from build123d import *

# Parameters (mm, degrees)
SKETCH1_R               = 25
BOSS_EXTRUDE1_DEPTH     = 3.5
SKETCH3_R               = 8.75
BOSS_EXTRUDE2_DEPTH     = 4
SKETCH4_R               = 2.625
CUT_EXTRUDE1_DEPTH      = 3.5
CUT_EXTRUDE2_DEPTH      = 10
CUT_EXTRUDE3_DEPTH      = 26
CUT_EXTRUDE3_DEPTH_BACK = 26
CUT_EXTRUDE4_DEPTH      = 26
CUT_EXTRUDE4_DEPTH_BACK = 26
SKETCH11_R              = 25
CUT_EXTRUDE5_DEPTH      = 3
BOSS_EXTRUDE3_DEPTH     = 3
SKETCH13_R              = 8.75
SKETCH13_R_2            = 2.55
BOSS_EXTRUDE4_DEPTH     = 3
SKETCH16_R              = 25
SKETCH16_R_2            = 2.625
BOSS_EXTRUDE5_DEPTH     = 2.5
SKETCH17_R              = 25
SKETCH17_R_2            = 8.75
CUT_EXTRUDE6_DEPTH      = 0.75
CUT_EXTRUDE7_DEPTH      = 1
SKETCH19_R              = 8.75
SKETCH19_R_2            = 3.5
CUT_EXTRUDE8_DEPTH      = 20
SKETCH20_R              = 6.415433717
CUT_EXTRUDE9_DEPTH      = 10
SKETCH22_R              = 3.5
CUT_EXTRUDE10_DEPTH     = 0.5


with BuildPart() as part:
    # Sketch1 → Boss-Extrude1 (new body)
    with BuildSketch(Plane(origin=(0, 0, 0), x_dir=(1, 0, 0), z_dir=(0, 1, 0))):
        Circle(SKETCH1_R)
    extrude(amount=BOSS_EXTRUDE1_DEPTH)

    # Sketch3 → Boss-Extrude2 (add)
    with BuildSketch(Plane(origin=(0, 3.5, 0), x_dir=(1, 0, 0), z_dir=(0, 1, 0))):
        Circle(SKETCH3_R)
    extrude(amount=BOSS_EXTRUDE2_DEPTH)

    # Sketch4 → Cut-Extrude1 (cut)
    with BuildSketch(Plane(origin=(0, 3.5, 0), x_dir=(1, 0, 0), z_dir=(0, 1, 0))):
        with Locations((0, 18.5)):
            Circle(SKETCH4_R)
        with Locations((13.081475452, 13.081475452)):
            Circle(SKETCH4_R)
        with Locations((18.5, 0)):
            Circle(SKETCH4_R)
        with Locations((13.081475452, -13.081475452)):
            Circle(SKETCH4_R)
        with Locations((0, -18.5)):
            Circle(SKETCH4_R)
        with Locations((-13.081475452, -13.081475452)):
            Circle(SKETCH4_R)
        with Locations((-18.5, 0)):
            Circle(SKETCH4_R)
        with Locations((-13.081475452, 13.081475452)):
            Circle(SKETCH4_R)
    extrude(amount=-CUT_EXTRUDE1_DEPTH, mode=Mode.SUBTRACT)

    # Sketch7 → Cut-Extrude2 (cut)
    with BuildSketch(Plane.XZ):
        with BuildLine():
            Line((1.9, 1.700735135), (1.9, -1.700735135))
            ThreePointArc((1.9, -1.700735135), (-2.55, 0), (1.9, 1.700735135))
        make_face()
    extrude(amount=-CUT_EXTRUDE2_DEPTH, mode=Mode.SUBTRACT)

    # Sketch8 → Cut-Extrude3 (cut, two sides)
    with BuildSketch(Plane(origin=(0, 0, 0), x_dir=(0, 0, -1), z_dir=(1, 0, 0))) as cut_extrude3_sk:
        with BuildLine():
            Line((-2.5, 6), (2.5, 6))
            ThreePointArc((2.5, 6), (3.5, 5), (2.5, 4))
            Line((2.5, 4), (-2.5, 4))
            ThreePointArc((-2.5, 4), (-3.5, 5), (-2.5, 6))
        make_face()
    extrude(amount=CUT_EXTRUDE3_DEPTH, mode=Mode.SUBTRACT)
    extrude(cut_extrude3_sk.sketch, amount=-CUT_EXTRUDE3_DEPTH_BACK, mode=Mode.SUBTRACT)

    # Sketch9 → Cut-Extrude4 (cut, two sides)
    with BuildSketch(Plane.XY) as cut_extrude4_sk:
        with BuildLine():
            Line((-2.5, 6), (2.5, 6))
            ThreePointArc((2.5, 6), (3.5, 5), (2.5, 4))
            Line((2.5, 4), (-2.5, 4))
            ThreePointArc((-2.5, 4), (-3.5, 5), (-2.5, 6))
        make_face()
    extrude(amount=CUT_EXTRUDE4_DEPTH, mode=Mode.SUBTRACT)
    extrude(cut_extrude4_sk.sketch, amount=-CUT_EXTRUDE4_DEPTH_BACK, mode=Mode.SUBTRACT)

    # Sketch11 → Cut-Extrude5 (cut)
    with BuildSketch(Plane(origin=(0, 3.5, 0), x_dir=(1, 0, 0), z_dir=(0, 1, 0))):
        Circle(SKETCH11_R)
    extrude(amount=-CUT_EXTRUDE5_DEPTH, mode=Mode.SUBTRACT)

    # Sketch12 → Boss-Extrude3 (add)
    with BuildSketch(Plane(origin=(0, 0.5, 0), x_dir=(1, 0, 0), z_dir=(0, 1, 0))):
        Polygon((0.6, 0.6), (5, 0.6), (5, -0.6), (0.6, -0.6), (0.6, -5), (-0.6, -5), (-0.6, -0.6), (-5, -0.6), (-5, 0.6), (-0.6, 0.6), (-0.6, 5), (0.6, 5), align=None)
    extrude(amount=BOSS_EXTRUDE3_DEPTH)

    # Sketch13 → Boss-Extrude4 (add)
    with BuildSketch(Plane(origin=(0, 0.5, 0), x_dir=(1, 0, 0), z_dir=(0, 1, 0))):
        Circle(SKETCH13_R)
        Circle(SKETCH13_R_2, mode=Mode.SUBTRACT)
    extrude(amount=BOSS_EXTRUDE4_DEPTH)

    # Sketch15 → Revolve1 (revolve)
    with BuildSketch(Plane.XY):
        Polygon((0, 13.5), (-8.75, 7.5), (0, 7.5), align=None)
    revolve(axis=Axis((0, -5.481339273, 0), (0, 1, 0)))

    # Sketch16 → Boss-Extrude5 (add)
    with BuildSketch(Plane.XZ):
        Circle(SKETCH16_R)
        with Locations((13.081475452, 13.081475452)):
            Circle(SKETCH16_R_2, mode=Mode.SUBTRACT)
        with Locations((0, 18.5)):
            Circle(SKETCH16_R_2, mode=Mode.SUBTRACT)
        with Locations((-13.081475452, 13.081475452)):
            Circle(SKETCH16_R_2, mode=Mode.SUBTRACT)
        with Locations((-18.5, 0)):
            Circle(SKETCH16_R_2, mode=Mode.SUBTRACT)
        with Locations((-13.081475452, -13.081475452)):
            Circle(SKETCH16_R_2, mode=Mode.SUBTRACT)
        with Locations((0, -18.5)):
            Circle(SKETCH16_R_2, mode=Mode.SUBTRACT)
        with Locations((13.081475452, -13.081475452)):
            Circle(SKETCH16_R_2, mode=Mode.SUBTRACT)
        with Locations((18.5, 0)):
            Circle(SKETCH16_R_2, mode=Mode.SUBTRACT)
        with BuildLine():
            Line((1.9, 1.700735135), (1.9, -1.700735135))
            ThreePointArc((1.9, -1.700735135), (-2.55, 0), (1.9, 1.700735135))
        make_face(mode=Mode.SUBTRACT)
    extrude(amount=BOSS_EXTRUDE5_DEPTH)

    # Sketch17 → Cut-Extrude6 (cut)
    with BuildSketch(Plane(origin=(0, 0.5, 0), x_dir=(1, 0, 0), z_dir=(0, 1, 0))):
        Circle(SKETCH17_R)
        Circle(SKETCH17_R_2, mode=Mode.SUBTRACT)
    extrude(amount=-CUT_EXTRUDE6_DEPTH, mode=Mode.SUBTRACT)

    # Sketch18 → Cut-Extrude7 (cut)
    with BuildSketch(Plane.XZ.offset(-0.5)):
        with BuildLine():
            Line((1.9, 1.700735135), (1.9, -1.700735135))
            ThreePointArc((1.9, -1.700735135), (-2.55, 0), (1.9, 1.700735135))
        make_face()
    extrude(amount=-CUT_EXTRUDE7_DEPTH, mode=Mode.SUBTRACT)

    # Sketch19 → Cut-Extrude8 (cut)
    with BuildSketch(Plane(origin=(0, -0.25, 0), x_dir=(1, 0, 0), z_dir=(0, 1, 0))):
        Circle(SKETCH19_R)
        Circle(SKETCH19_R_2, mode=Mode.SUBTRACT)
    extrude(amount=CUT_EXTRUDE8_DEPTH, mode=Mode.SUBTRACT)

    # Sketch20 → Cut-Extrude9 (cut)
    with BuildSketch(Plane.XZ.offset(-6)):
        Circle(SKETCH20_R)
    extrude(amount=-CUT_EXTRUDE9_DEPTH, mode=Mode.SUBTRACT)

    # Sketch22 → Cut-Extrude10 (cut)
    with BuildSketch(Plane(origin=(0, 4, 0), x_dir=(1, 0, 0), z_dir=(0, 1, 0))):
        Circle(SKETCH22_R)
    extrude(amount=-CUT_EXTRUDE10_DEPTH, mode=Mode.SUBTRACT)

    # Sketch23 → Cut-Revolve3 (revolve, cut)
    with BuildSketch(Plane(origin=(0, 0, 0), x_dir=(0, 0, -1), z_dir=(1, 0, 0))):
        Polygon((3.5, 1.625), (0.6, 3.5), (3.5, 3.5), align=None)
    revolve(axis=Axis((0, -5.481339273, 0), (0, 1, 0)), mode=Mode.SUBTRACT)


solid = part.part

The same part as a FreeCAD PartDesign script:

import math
import FreeCAD as App
import Part
import Sketcher

doc = App.newDocument("Part")
body = doc.addObject("PartDesign::Body", "Body")
body.AllowCompound = True

sketch1 = doc.addObject("Sketcher::SketchObject", "Sketch")
body.addObject(sketch1)
sketch1.AttachmentSupport = (doc.XZ_Plane, [""])
sketch1.MapMode = "FlatFace"
sketch1.addGeometry(Part.Circle(App.Vector(0, 0, 0), App.Vector(0, 0, 1), 25), False)
sketch1.addConstraint(Sketcher.Constraint("Coincident", 0, 3, -1, 1))
sketch1.addConstraint(Sketcher.Constraint("Diameter", 0, 50.0))
pad1 = doc.addObject("PartDesign::Pad", "Pad")
body.addObject(pad1)
pad1.Profile = sketch1
pad1.Length = 3.5
pad1.Reversed = True

sketch2 = doc.addObject("Sketcher::SketchObject", "Sketch001")
body.addObject(sketch2)
sketch2.AttachmentSupport = (doc.XZ_Plane, [""])
sketch2.MapMode = "FlatFace"
sketch2.AttachmentOffset = App.Placement(App.Vector(0, 0, -3.5), App.Rotation())
sketch2.addGeometry(Part.Circle(App.Vector(0, 0, 0), App.Vector(0, 0, 1), 8.75), False)
sketch2.addConstraint(Sketcher.Constraint("Coincident", 0, 3, -1, 1))
sketch2.addConstraint(Sketcher.Constraint("Diameter", 0, 17.5))
pad2 = doc.addObject("PartDesign::Pad", "Pad001")
body.addObject(pad2)
pad2.Profile = sketch2
pad2.Length = 4
pad2.Reversed = True

sketch3 = doc.addObject("Sketcher::SketchObject", "Sketch002")
body.addObject(sketch3)
sketch3.AttachmentSupport = (doc.XZ_Plane, [""])
sketch3.MapMode = "FlatFace"
sketch3.AttachmentOffset = App.Placement(App.Vector(0, 0, -3.5), App.Rotation())
sketch3.addGeometry(Part.Circle(App.Vector(0, -18.5, 0), App.Vector(0, 0, 1), 2.625), False)
sketch3.addGeometry(Part.Circle(App.Vector(13.081475, -13.081475, 0), App.Vector(0, 0, 1), 2.625), False)
sketch3.addGeometry(Part.Circle(App.Vector(18.5, 0, 0), App.Vector(0, 0, 1), 2.625), False)
sketch3.addGeometry(Part.Circle(App.Vector(13.081475, 13.081475, 0), App.Vector(0, 0, 1), 2.625), False)
sketch3.addGeometry(Part.Circle(App.Vector(0, 18.5, 0), App.Vector(0, 0, 1), 2.625), False)
sketch3.addGeometry(Part.Circle(App.Vector(-13.081475, 13.081475, 0), App.Vector(0, 0, 1), 2.625), False)
sketch3.addGeometry(Part.Circle(App.Vector(-18.5, 0, 0), App.Vector(0, 0, 1), 2.625), False)
sketch3.addGeometry(Part.Circle(App.Vector(-13.081475, -13.081475, 0), App.Vector(0, 0, 1), 2.625), False)
sketch3.addConstraint(Sketcher.Constraint("Equal", 0, 1))
sketch3.addConstraint(Sketcher.Constraint("Equal", 1, 2))
sketch3.addConstraint(Sketcher.Constraint("Equal", 2, 3))
sketch3.addConstraint(Sketcher.Constraint("Equal", 3, 4))
sketch3.addConstraint(Sketcher.Constraint("Equal", 4, 5))
sketch3.addConstraint(Sketcher.Constraint("Equal", 5, 6))
sketch3.addConstraint(Sketcher.Constraint("Equal", 6, 7))
sketch3.addConstraint(Sketcher.Constraint("Symmetric", 0, 3, 4, 3, -1, 1))
sketch3.addConstraint(Sketcher.Constraint("Symmetric", 1, 3, 5, 3, -1, 1))
sketch3.addConstraint(Sketcher.Constraint("Symmetric", 2, 3, 6, 3, -1, 1))
sketch3.addConstraint(Sketcher.Constraint("Symmetric", 3, 3, 7, 3, -1, 1))
sketch3.addConstraint(Sketcher.Constraint("Symmetric", 3, 3, 5, 3, -2))
sketch3.addConstraint(Sketcher.Constraint("PointOnObject", 0, 3, -2))
sketch3.addConstraint(Sketcher.Constraint("PointOnObject", 2, 3, -1))
sketch3.addConstraint(Sketcher.Constraint("Diameter", 0, 5.25))
sketch3.addConstraint(Sketcher.Constraint("DistanceY", 0, 3, 4, 3, 37.0))
sketch3.addConstraint(Sketcher.Constraint("DistanceX", -1, 1, 2, 3, 18.5))
sketch3.addConstraint(Sketcher.Constraint("DistanceY", 1, 3, 3, 3, 26.162951))
sketch3.addConstraint(Sketcher.Constraint("DistanceX", 5, 3, 3, 3, 26.162951))
pocket1 = doc.addObject("PartDesign::Pocket", "Pocket")
body.addObject(pocket1)
pocket1.Profile = sketch3
pocket1.Length = 3.5
pocket1.Reversed = True

sketch4 = doc.addObject("Sketcher::SketchObject", "Sketch003")
body.addObject(sketch4)
sketch4.AttachmentSupport = (doc.XZ_Plane, [""])
sketch4.MapMode = "FlatFace"
sketch4.addGeometry(Part.LineSegment(App.Vector(1.9, -1.700735, 0), App.Vector(1.9, 1.700735, 0)), False)
sketch4.addGeometry(Part.ArcOfCircle(Part.Circle(App.Vector(0, 0, 0), App.Vector(0, 0, 1), 2.55), math.radians(41.83248), math.radians(318.16752)), False)
sketch4.addConstraint(Sketcher.Constraint("Coincident", 0, 1, 1, 2))
sketch4.addConstraint(Sketcher.Constraint("Coincident", 1, 1, 0, 2))
sketch4.addConstraint(Sketcher.Constraint("Vertical", 0))
sketch4.addConstraint(Sketcher.Constraint("Coincident", 1, 3, -1, 1))
sketch4.addConstraint(Sketcher.Constraint("Radius", 1, 2.55))
sketch4.addConstraint(Sketcher.Constraint("DistanceX", -1, 1, 0, 1, 1.9))
pocket2 = doc.addObject("PartDesign::Pocket", "Pocket001")
body.addObject(pocket2)
pocket2.Profile = sketch4
pocket2.Length = 10

sketch5 = doc.addObject("Sketcher::SketchObject", "Sketch004")
body.addObject(sketch5)
sketch5.AttachmentSupport = (doc.YZ_Plane, [""])
sketch5.MapMode = "FlatFace"
sketch5.addGeometry(Part.LineSegment(App.Vector(6, -2.5, 0), App.Vector(6, 2.5, 0)), False)
sketch5.addGeometry(Part.ArcOfCircle(Part.Circle(App.Vector(5, 2.5, 0), App.Vector(0, 0, 1), 1), math.radians(0), math.radians(180)), False)
sketch5.addGeometry(Part.LineSegment(App.Vector(4, 2.5, 0), App.Vector(4, -2.5, 0)), False)
sketch5.addGeometry(Part.ArcOfCircle(Part.Circle(App.Vector(5, -2.5, 0), App.Vector(0, 0, 1), 1), math.radians(180), math.radians(360)), False)
sketch5.addConstraint(Sketcher.Constraint("Tangent", 0, 2, 1, 1))
sketch5.addConstraint(Sketcher.Constraint("Tangent", 1, 2, 2, 1))
sketch5.addConstraint(Sketcher.Constraint("Tangent", 2, 2, 3, 1))
sketch5.addConstraint(Sketcher.Constraint("Tangent", 3, 2, 0, 1))
sketch5.addConstraint(Sketcher.Constraint("Vertical", 0))
sketch5.addConstraint(Sketcher.Constraint("Vertical", 2))
sketch5.addConstraint(Sketcher.Constraint("Radius", 1, 1.0))
sketch5.addConstraint(Sketcher.Constraint("DistanceY", 0, 1, 0, 2, 5.0))
sketch5.addConstraint(Sketcher.Constraint("DistanceX", -1, 1, 1, 3, 5.0))
sketch5.addConstraint(Sketcher.Constraint("DistanceY", -1, 1, 1, 3, 2.5))
pocket3 = doc.addObject("PartDesign::Pocket", "Pocket002")
body.addObject(pocket3)
pocket3.Profile = sketch5
pocket3.Type = "ThroughAll"
pocket3.Midplane = True

sketch6 = doc.addObject("Sketcher::SketchObject", "Sketch005")
body.addObject(sketch6)
sketch6.AttachmentSupport = (doc.XY_Plane, [""])
sketch6.MapMode = "FlatFace"
sketch6.addGeometry(Part.LineSegment(App.Vector(2.5, 6, 0), App.Vector(-2.5, 6, 0)), False)
sketch6.addGeometry(Part.ArcOfCircle(Part.Circle(App.Vector(-2.5, 5, 0), App.Vector(0, 0, 1), 1), math.radians(90), math.radians(270)), False)
sketch6.addGeometry(Part.LineSegment(App.Vector(-2.5, 4, 0), App.Vector(2.5, 4, 0)), False)
sketch6.addGeometry(Part.ArcOfCircle(Part.Circle(App.Vector(2.5, 5, 0), App.Vector(0, 0, 1), 1), math.radians(-90), math.radians(90)), False)
sketch6.addConstraint(Sketcher.Constraint("Tangent", 0, 2, 1, 1))
sketch6.addConstraint(Sketcher.Constraint("Tangent", 1, 2, 2, 1))
sketch6.addConstraint(Sketcher.Constraint("Tangent", 2, 2, 3, 1))
sketch6.addConstraint(Sketcher.Constraint("Tangent", 3, 2, 0, 1))
sketch6.addConstraint(Sketcher.Constraint("Horizontal", 0))
sketch6.addConstraint(Sketcher.Constraint("Horizontal", 2))
sketch6.addConstraint(Sketcher.Constraint("Radius", 1, 1.0))
sketch6.addConstraint(Sketcher.Constraint("DistanceX", 0, 2, 0, 1, 5.0))
sketch6.addConstraint(Sketcher.Constraint("DistanceY", -1, 1, 1, 3, 5.0))
sketch6.addConstraint(Sketcher.Constraint("DistanceX", 1, 3, -1, 1, 2.5))
pocket4 = doc.addObject("PartDesign::Pocket", "Pocket003")
body.addObject(pocket4)
pocket4.Profile = sketch6
pocket4.Type = "ThroughAll"
pocket4.Midplane = True

sketch7 = doc.addObject("Sketcher::SketchObject", "Sketch006")
body.addObject(sketch7)
sketch7.AttachmentSupport = (doc.XZ_Plane, [""])
sketch7.MapMode = "FlatFace"
sketch7.AttachmentOffset = App.Placement(App.Vector(0, 0, -3.5), App.Rotation())
sketch7.addGeometry(Part.Circle(App.Vector(0, 0, 0), App.Vector(0, 0, 1), 25), False)
sketch7.addConstraint(Sketcher.Constraint("Coincident", 0, 3, -1, 1))
sketch7.addConstraint(Sketcher.Constraint("Diameter", 0, 50.0))
pocket5 = doc.addObject("PartDesign::Pocket", "Pocket004")
body.addObject(pocket5)
pocket5.Profile = sketch7
pocket5.Length = 3
pocket5.Reversed = True

sketch8 = doc.addObject("Sketcher::SketchObject", "Sketch007")
body.addObject(sketch8)
sketch8.AttachmentSupport = (doc.XZ_Plane, [""])
sketch8.MapMode = "FlatFace"
sketch8.AttachmentOffset = App.Placement(App.Vector(0, 0, -0.5), App.Rotation())
sketch8.addGeometry(Part.LineSegment(App.Vector(5, -0.6, 0), App.Vector(0.6, -0.6, 0)), False)
sketch8.addGeometry(Part.LineSegment(App.Vector(0.6, -0.6, 0), App.Vector(0.6, -5, 0)), False)
sketch8.addGeometry(Part.LineSegment(App.Vector(0.6, -5, 0), App.Vector(-0.6, -5, 0)), False)
sketch8.addGeometry(Part.LineSegment(App.Vector(-0.6, -5, 0), App.Vector(-0.6, -0.6, 0)), False)
sketch8.addGeometry(Part.LineSegment(App.Vector(-0.6, -0.6, 0), App.Vector(-5, -0.6, 0)), False)
sketch8.addGeometry(Part.LineSegment(App.Vector(-5, -0.6, 0), App.Vector(-5, 0.6, 0)), False)
sketch8.addGeometry(Part.LineSegment(App.Vector(-5, 0.6, 0), App.Vector(-0.6, 0.6, 0)), False)
sketch8.addGeometry(Part.LineSegment(App.Vector(-0.6, 0.6, 0), App.Vector(-0.6, 5, 0)), False)
sketch8.addGeometry(Part.LineSegment(App.Vector(-0.6, 5, 0), App.Vector(0.6, 5, 0)), False)
sketch8.addGeometry(Part.LineSegment(App.Vector(0.6, 5, 0), App.Vector(0.6, 0.6, 0)), False)
sketch8.addGeometry(Part.LineSegment(App.Vector(0.6, 0.6, 0), App.Vector(5, 0.6, 0)), False)
sketch8.addGeometry(Part.LineSegment(App.Vector(5, 0.6, 0), App.Vector(5, -0.6, 0)), False)
sketch8.addConstraint(Sketcher.Constraint("Coincident", 0, 2, 1, 1))
sketch8.addConstraint(Sketcher.Constraint("Coincident", 1, 2, 2, 1))
sketch8.addConstraint(Sketcher.Constraint("Coincident", 2, 2, 3, 1))
sketch8.addConstraint(Sketcher.Constraint("Coincident", 3, 2, 4, 1))
sketch8.addConstraint(Sketcher.Constraint("Coincident", 4, 2, 5, 1))
sketch8.addConstraint(Sketcher.Constraint("Coincident", 5, 2, 6, 1))
sketch8.addConstraint(Sketcher.Constraint("Coincident", 6, 2, 7, 1))
sketch8.addConstraint(Sketcher.Constraint("Coincident", 7, 2, 8, 1))
sketch8.addConstraint(Sketcher.Constraint("Coincident", 8, 2, 9, 1))
sketch8.addConstraint(Sketcher.Constraint("Coincident", 9, 2, 10, 1))
sketch8.addConstraint(Sketcher.Constraint("Coincident", 10, 2, 11, 1))
sketch8.addConstraint(Sketcher.Constraint("Coincident", 11, 2, 0, 1))
sketch8.addConstraint(Sketcher.Constraint("Horizontal", 0))
sketch8.addConstraint(Sketcher.Constraint("Vertical", 1))
sketch8.addConstraint(Sketcher.Constraint("Horizontal", 2))
sketch8.addConstraint(Sketcher.Constraint("Vertical", 3))
sketch8.addConstraint(Sketcher.Constraint("Horizontal", 4))
sketch8.addConstraint(Sketcher.Constraint("Vertical", 5))
sketch8.addConstraint(Sketcher.Constraint("Horizontal", 6))
sketch8.addConstraint(Sketcher.Constraint("Vertical", 7))
sketch8.addConstraint(Sketcher.Constraint("Horizontal", 8))
sketch8.addConstraint(Sketcher.Constraint("Vertical", 9))
sketch8.addConstraint(Sketcher.Constraint("Horizontal", 10))
sketch8.addConstraint(Sketcher.Constraint("Vertical", 11))
sketch8.addConstraint(Sketcher.Constraint("Symmetric", 0, 2, 6, 2, -1, 1))
sketch8.addConstraint(Sketcher.Constraint("Symmetric", 2, 2, 8, 2, -1, 1))
sketch8.addConstraint(Sketcher.Constraint("Symmetric", 4, 2, 10, 2, -1, 1))
sketch8.addConstraint(Sketcher.Constraint("Symmetric", 0, 2, 3, 2, -2))
sketch8.addConstraint(Sketcher.Constraint("Equal", 10, 1))
sketch8.addConstraint(Sketcher.Constraint("Equal", 8, 5))
sketch8.addConstraint(Sketcher.Constraint("DistanceX", 0, 2, 0, 1, 4.4))
sketch8.addConstraint(Sketcher.Constraint("DistanceX", 2, 2, 2, 1, 1.2))
pad3 = doc.addObject("PartDesign::Pad", "Pad002")
body.addObject(pad3)
pad3.Profile = sketch8
pad3.Length = 3
pad3.Reversed = True

sketch9 = doc.addObject("Sketcher::SketchObject", "Sketch008")
body.addObject(sketch9)
sketch9.AttachmentSupport = (doc.XZ_Plane, [""])
sketch9.MapMode = "FlatFace"
sketch9.AttachmentOffset = App.Placement(App.Vector(0, 0, -0.5), App.Rotation())
sketch9.addGeometry(Part.Circle(App.Vector(0, 0, 0), App.Vector(0, 0, 1), 8.75), False)
sketch9.addGeometry(Part.Circle(App.Vector(0, 0, 0), App.Vector(0, 0, 1), 2.55), False)
sketch9.addConstraint(Sketcher.Constraint("Coincident", 0, 3, -1, 1))
sketch9.addConstraint(Sketcher.Constraint("Coincident", 1, 3, -1, 1))
sketch9.addConstraint(Sketcher.Constraint("Diameter", 0, 17.5))
sketch9.addConstraint(Sketcher.Constraint("Diameter", 1, 5.1))
pad4 = doc.addObject("PartDesign::Pad", "Pad003")
body.addObject(pad4)
pad4.Profile = sketch9
pad4.Length = 3
pad4.Reversed = True

sketch10 = doc.addObject("Sketcher::SketchObject", "Sketch009")
body.addObject(sketch10)
sketch10.AttachmentSupport = (doc.XY_Plane, [""])
sketch10.MapMode = "FlatFace"
sketch10.addGeometry(Part.LineSegment(App.Vector(0, 13.5, 0), App.Vector(-8.75, 7.5, 0)), False)
sketch10.addGeometry(Part.LineSegment(App.Vector(-8.75, 7.5, 0), App.Vector(0, 7.5, 0)), False)
sketch10.addGeometry(Part.LineSegment(App.Vector(0, 7.5, 0), App.Vector(0, 13.5, 0)), False)
sketch10.addConstraint(Sketcher.Constraint("Coincident", 0, 2, 1, 1))
sketch10.addConstraint(Sketcher.Constraint("Coincident", 1, 2, 2, 1))
sketch10.addConstraint(Sketcher.Constraint("Coincident", 2, 2, 0, 1))
sketch10.addConstraint(Sketcher.Constraint("Horizontal", 1))
sketch10.addConstraint(Sketcher.Constraint("Vertical", 2))
sketch10.addConstraint(Sketcher.Constraint("PointOnObject", 1, 2, -2))
sketch10.addConstraint(Sketcher.Constraint("DistanceY", 2, 1, 2, 2, 6.0))
sketch10.addConstraint(Sketcher.Constraint("DistanceX", 1, 1, 1, 2, 8.75))
sketch10.addConstraint(Sketcher.Constraint("DistanceY", -1, 1, 0, 2, 7.5))
revolution = doc.addObject("PartDesign::Revolution", "Revolution")
body.addObject(revolution)
revolution.Profile = sketch10
revolution.ReferenceAxis = (sketch10, ["V_Axis"])
revolution.Angle = 360

sketch11 = doc.addObject("Sketcher::SketchObject", "Sketch010")
body.addObject(sketch11)
sketch11.AttachmentSupport = (doc.XZ_Plane, [""])
sketch11.MapMode = "FlatFace"
sketch11.addGeometry(Part.Circle(App.Vector(0, 0, 0), App.Vector(0, 0, 1), 25), False)
sketch11.addGeometry(Part.Circle(App.Vector(-13.081475, -13.081475, 0), App.Vector(0, 0, 1), 2.625), False)
sketch11.addGeometry(Part.Circle(App.Vector(0, -18.5, 0), App.Vector(0, 0, 1), 2.625), False)
sketch11.addGeometry(Part.Circle(App.Vector(13.081475, -13.081475, 0), App.Vector(0, 0, 1), 2.625), False)
sketch11.addGeometry(Part.Circle(App.Vector(-18.5, 0, 0), App.Vector(0, 0, 1), 2.625), False)
sketch11.addGeometry(Part.ArcOfCircle(Part.Circle(App.Vector(0, 0, 0), App.Vector(0, 0, 1), 2.55), math.radians(41.83248), math.radians(318.16752)), False)
sketch11.addGeometry(Part.LineSegment(App.Vector(1.9, 1.700735, 0), App.Vector(1.9, -1.700735, 0)), False)
sketch11.addGeometry(Part.Circle(App.Vector(-13.081475, 13.081475, 0), App.Vector(0, 0, 1), 2.625), False)
sketch11.addGeometry(Part.Circle(App.Vector(18.5, 0, 0), App.Vector(0, 0, 1), 2.625), False)
sketch11.addGeometry(Part.Circle(App.Vector(0, 18.5, 0), App.Vector(0, 0, 1), 2.625), False)
sketch11.addGeometry(Part.Circle(App.Vector(13.081475, 13.081475, 0), App.Vector(0, 0, 1), 2.625), False)
sketch11.addConstraint(Sketcher.Constraint("Coincident", 5, 1, 6, 1))
sketch11.addConstraint(Sketcher.Constraint("Coincident", 6, 2, 5, 2))
sketch11.addConstraint(Sketcher.Constraint("Vertical", 6))
sketch11.addConstraint(Sketcher.Constraint("Coincident", 0, 3, -1, 1))
sketch11.addConstraint(Sketcher.Constraint("Coincident", 5, 3, -1, 1))
sketch11.addConstraint(Sketcher.Constraint("Equal", 1, 2))
sketch11.addConstraint(Sketcher.Constraint("Equal", 2, 3))
sketch11.addConstraint(Sketcher.Constraint("Equal", 3, 4))
sketch11.addConstraint(Sketcher.Constraint("Equal", 4, 7))
sketch11.addConstraint(Sketcher.Constraint("Equal", 7, 8))
sketch11.addConstraint(Sketcher.Constraint("Equal", 8, 9))
sketch11.addConstraint(Sketcher.Constraint("Equal", 9, 10))
sketch11.addConstraint(Sketcher.Constraint("Symmetric", 3, 3, 7, 3, -1, 1))
sketch11.addConstraint(Sketcher.Constraint("Symmetric", 4, 3, 8, 3, -1, 1))
sketch11.addConstraint(Sketcher.Constraint("Symmetric", 2, 3, 9, 3, -1, 1))
sketch11.addConstraint(Sketcher.Constraint("Symmetric", 1, 3, 10, 3, -1, 1))
sketch11.addConstraint(Sketcher.Constraint("Symmetric", 1, 3, 3, 3, -2))
sketch11.addConstraint(Sketcher.Constraint("PointOnObject", 2, 3, -2))
sketch11.addConstraint(Sketcher.Constraint("PointOnObject", 4, 3, -1))
sketch11.addConstraint(Sketcher.Constraint("Diameter", 0, 50.0))
sketch11.addConstraint(Sketcher.Constraint("Diameter", 1, 5.25))
sketch11.addConstraint(Sketcher.Constraint("Radius", 5, 2.55))
sketch11.addConstraint(Sketcher.Constraint("DistanceY", 2, 3, -1, 1, 18.5))
sketch11.addConstraint(Sketcher.Constraint("DistanceX", 4, 3, -1, 1, 18.5))
sketch11.addConstraint(Sketcher.Constraint("DistanceX", -1, 1, 5, 1, 1.9))
sketch11.addConstraint(Sketcher.Constraint("DistanceX", 1, 3, 3, 3, 26.162951))
sketch11.addConstraint(Sketcher.Constraint("DistanceY", 1, 3, 7, 3, 26.162951))
pad5 = doc.addObject("PartDesign::Pad", "Pad004")
body.addObject(pad5)
pad5.Profile = sketch11
pad5.Length = 2.5

sketch12 = doc.addObject("Sketcher::SketchObject", "Sketch011")
body.addObject(sketch12)
sketch12.AttachmentSupport = (doc.XZ_Plane, [""])
sketch12.MapMode = "FlatFace"
sketch12.AttachmentOffset = App.Placement(App.Vector(0, 0, -0.5), App.Rotation())
sketch12.addGeometry(Part.Circle(App.Vector(0, 0, 0), App.Vector(0, 0, 1), 25), False)
sketch12.addGeometry(Part.Circle(App.Vector(0, 0, 0), App.Vector(0, 0, 1), 8.75), False)
sketch12.addConstraint(Sketcher.Constraint("Coincident", 0, 3, -1, 1))
sketch12.addConstraint(Sketcher.Constraint("Coincident", 1, 3, -1, 1))
sketch12.addConstraint(Sketcher.Constraint("Diameter", 0, 50.0))
sketch12.addConstraint(Sketcher.Constraint("Diameter", 1, 17.5))
pocket6 = doc.addObject("PartDesign::Pocket", "Pocket005")
body.addObject(pocket6)
pocket6.Profile = sketch12
pocket6.Length = 0.75
pocket6.Reversed = True

sketch13 = doc.addObject("Sketcher::SketchObject", "Sketch012")
body.addObject(sketch13)
sketch13.AttachmentSupport = (doc.XZ_Plane, [""])
sketch13.MapMode = "FlatFace"
sketch13.AttachmentOffset = App.Placement(App.Vector(0, 0, -0.5), App.Rotation())
sketch13.addGeometry(Part.LineSegment(App.Vector(1.9, -1.700735, 0), App.Vector(1.9, 1.700735, 0)), False)
sketch13.addGeometry(Part.ArcOfCircle(Part.Circle(App.Vector(0, 0, 0), App.Vector(0, 0, 1), 2.55), math.radians(41.83248), math.radians(318.16752)), False)
sketch13.addConstraint(Sketcher.Constraint("Coincident", 0, 1, 1, 2))
sketch13.addConstraint(Sketcher.Constraint("Coincident", 1, 1, 0, 2))
sketch13.addConstraint(Sketcher.Constraint("Vertical", 0))
sketch13.addConstraint(Sketcher.Constraint("Coincident", 1, 3, -1, 1))
sketch13.addConstraint(Sketcher.Constraint("Radius", 1, 2.55))
sketch13.addConstraint(Sketcher.Constraint("DistanceX", -1, 1, 0, 1, 1.9))
pocket7 = doc.addObject("PartDesign::Pocket", "Pocket006")
body.addObject(pocket7)
pocket7.Profile = sketch13
pocket7.Length = 1

sketch14 = doc.addObject("Sketcher::SketchObject", "Sketch013")
body.addObject(sketch14)
sketch14.AttachmentSupport = (doc.XZ_Plane, [""])
sketch14.MapMode = "FlatFace"
sketch14.AttachmentOffset = App.Placement(App.Vector(0, 0, 0.25), App.Rotation())
sketch14.addGeometry(Part.Circle(App.Vector(0, 0, 0), App.Vector(0, 0, 1), 8.75), False)
sketch14.addGeometry(Part.Circle(App.Vector(0, 0, 0), App.Vector(0, 0, 1), 3.5), False)
sketch14.addConstraint(Sketcher.Constraint("Coincident", 0, 3, -1, 1))
sketch14.addConstraint(Sketcher.Constraint("Coincident", 1, 3, -1, 1))
sketch14.addConstraint(Sketcher.Constraint("Diameter", 1, 7.0))
sketch14.addConstraint(Sketcher.Constraint("Diameter", 0, 17.5))
pocket8 = doc.addObject("PartDesign::Pocket", "Pocket007")
body.addObject(pocket8)
pocket8.Profile = sketch14
pocket8.Length = 20

sketch15 = doc.addObject("Sketcher::SketchObject", "Sketch014")
body.addObject(sketch15)
sketch15.AttachmentSupport = (doc.XZ_Plane, [""])
sketch15.MapMode = "FlatFace"
sketch15.AttachmentOffset = App.Placement(App.Vector(0, 0, -6), App.Rotation())
sketch15.addGeometry(Part.Circle(App.Vector(0, 0, 0), App.Vector(0, 0, 1), 6.415434), False)
sketch15.addConstraint(Sketcher.Constraint("Coincident", 0, 3, -1, 1))
sketch15.addConstraint(Sketcher.Constraint("Diameter", 0, 12.830867))
pocket9 = doc.addObject("PartDesign::Pocket", "Pocket008")
body.addObject(pocket9)
pocket9.Profile = sketch15
pocket9.Length = 10

sketch16 = doc.addObject("Sketcher::SketchObject", "Sketch015")
body.addObject(sketch16)
sketch16.AttachmentSupport = (doc.XZ_Plane, [""])
sketch16.MapMode = "FlatFace"
sketch16.AttachmentOffset = App.Placement(App.Vector(0, 0, -4), App.Rotation())
sketch16.addGeometry(Part.Circle(App.Vector(0, 0, 0), App.Vector(0, 0, 1), 3.5), False)
sketch16.addConstraint(Sketcher.Constraint("Coincident", 0, 3, -1, 1))
sketch16.addConstraint(Sketcher.Constraint("Diameter", 0, 7.0))
pocket10 = doc.addObject("PartDesign::Pocket", "Pocket009")
body.addObject(pocket10)
pocket10.Profile = sketch16
pocket10.Length = 0.5
pocket10.Reversed = True

sketch17 = doc.addObject("Sketcher::SketchObject", "Sketch016")
body.addObject(sketch17)
sketch17.AttachmentSupport = (doc.YZ_Plane, [""])
sketch17.MapMode = "FlatFace"
sketch17.addGeometry(Part.LineSegment(App.Vector(3.5, -0.6, 0), App.Vector(1.625, -3.5, 0)), False)
sketch17.addGeometry(Part.LineSegment(App.Vector(1.625, -3.5, 0), App.Vector(3.5, -3.5, 0)), False)
sketch17.addGeometry(Part.LineSegment(App.Vector(3.5, -3.5, 0), App.Vector(3.5, -0.6, 0)), False)
sketch17.addConstraint(Sketcher.Constraint("Coincident", 0, 2, 1, 1))
sketch17.addConstraint(Sketcher.Constraint("Coincident", 1, 2, 2, 1))
sketch17.addConstraint(Sketcher.Constraint("Coincident", 2, 2, 0, 1))
sketch17.addConstraint(Sketcher.Constraint("Horizontal", 1))
sketch17.addConstraint(Sketcher.Constraint("Vertical", 2))
sketch17.addConstraint(Sketcher.Constraint("DistanceY", 2, 1, 2, 2, 2.9))
sketch17.addConstraint(Sketcher.Constraint("DistanceY", 0, 2, -1, 1, 3.5))
sketch17.addConstraint(Sketcher.Constraint("DistanceX", -1, 1, 1, 2, 3.5))
sketch17.addConstraint(Sketcher.Constraint("DistanceX", 1, 1, 1, 2, 1.875))
groove = doc.addObject("PartDesign::Groove", "Groove")
body.addObject(groove)
groove.Profile = sketch17
groove.ReferenceAxis = (sketch17, ["H_Axis"])
groove.Angle = 360

doc.recompute()
